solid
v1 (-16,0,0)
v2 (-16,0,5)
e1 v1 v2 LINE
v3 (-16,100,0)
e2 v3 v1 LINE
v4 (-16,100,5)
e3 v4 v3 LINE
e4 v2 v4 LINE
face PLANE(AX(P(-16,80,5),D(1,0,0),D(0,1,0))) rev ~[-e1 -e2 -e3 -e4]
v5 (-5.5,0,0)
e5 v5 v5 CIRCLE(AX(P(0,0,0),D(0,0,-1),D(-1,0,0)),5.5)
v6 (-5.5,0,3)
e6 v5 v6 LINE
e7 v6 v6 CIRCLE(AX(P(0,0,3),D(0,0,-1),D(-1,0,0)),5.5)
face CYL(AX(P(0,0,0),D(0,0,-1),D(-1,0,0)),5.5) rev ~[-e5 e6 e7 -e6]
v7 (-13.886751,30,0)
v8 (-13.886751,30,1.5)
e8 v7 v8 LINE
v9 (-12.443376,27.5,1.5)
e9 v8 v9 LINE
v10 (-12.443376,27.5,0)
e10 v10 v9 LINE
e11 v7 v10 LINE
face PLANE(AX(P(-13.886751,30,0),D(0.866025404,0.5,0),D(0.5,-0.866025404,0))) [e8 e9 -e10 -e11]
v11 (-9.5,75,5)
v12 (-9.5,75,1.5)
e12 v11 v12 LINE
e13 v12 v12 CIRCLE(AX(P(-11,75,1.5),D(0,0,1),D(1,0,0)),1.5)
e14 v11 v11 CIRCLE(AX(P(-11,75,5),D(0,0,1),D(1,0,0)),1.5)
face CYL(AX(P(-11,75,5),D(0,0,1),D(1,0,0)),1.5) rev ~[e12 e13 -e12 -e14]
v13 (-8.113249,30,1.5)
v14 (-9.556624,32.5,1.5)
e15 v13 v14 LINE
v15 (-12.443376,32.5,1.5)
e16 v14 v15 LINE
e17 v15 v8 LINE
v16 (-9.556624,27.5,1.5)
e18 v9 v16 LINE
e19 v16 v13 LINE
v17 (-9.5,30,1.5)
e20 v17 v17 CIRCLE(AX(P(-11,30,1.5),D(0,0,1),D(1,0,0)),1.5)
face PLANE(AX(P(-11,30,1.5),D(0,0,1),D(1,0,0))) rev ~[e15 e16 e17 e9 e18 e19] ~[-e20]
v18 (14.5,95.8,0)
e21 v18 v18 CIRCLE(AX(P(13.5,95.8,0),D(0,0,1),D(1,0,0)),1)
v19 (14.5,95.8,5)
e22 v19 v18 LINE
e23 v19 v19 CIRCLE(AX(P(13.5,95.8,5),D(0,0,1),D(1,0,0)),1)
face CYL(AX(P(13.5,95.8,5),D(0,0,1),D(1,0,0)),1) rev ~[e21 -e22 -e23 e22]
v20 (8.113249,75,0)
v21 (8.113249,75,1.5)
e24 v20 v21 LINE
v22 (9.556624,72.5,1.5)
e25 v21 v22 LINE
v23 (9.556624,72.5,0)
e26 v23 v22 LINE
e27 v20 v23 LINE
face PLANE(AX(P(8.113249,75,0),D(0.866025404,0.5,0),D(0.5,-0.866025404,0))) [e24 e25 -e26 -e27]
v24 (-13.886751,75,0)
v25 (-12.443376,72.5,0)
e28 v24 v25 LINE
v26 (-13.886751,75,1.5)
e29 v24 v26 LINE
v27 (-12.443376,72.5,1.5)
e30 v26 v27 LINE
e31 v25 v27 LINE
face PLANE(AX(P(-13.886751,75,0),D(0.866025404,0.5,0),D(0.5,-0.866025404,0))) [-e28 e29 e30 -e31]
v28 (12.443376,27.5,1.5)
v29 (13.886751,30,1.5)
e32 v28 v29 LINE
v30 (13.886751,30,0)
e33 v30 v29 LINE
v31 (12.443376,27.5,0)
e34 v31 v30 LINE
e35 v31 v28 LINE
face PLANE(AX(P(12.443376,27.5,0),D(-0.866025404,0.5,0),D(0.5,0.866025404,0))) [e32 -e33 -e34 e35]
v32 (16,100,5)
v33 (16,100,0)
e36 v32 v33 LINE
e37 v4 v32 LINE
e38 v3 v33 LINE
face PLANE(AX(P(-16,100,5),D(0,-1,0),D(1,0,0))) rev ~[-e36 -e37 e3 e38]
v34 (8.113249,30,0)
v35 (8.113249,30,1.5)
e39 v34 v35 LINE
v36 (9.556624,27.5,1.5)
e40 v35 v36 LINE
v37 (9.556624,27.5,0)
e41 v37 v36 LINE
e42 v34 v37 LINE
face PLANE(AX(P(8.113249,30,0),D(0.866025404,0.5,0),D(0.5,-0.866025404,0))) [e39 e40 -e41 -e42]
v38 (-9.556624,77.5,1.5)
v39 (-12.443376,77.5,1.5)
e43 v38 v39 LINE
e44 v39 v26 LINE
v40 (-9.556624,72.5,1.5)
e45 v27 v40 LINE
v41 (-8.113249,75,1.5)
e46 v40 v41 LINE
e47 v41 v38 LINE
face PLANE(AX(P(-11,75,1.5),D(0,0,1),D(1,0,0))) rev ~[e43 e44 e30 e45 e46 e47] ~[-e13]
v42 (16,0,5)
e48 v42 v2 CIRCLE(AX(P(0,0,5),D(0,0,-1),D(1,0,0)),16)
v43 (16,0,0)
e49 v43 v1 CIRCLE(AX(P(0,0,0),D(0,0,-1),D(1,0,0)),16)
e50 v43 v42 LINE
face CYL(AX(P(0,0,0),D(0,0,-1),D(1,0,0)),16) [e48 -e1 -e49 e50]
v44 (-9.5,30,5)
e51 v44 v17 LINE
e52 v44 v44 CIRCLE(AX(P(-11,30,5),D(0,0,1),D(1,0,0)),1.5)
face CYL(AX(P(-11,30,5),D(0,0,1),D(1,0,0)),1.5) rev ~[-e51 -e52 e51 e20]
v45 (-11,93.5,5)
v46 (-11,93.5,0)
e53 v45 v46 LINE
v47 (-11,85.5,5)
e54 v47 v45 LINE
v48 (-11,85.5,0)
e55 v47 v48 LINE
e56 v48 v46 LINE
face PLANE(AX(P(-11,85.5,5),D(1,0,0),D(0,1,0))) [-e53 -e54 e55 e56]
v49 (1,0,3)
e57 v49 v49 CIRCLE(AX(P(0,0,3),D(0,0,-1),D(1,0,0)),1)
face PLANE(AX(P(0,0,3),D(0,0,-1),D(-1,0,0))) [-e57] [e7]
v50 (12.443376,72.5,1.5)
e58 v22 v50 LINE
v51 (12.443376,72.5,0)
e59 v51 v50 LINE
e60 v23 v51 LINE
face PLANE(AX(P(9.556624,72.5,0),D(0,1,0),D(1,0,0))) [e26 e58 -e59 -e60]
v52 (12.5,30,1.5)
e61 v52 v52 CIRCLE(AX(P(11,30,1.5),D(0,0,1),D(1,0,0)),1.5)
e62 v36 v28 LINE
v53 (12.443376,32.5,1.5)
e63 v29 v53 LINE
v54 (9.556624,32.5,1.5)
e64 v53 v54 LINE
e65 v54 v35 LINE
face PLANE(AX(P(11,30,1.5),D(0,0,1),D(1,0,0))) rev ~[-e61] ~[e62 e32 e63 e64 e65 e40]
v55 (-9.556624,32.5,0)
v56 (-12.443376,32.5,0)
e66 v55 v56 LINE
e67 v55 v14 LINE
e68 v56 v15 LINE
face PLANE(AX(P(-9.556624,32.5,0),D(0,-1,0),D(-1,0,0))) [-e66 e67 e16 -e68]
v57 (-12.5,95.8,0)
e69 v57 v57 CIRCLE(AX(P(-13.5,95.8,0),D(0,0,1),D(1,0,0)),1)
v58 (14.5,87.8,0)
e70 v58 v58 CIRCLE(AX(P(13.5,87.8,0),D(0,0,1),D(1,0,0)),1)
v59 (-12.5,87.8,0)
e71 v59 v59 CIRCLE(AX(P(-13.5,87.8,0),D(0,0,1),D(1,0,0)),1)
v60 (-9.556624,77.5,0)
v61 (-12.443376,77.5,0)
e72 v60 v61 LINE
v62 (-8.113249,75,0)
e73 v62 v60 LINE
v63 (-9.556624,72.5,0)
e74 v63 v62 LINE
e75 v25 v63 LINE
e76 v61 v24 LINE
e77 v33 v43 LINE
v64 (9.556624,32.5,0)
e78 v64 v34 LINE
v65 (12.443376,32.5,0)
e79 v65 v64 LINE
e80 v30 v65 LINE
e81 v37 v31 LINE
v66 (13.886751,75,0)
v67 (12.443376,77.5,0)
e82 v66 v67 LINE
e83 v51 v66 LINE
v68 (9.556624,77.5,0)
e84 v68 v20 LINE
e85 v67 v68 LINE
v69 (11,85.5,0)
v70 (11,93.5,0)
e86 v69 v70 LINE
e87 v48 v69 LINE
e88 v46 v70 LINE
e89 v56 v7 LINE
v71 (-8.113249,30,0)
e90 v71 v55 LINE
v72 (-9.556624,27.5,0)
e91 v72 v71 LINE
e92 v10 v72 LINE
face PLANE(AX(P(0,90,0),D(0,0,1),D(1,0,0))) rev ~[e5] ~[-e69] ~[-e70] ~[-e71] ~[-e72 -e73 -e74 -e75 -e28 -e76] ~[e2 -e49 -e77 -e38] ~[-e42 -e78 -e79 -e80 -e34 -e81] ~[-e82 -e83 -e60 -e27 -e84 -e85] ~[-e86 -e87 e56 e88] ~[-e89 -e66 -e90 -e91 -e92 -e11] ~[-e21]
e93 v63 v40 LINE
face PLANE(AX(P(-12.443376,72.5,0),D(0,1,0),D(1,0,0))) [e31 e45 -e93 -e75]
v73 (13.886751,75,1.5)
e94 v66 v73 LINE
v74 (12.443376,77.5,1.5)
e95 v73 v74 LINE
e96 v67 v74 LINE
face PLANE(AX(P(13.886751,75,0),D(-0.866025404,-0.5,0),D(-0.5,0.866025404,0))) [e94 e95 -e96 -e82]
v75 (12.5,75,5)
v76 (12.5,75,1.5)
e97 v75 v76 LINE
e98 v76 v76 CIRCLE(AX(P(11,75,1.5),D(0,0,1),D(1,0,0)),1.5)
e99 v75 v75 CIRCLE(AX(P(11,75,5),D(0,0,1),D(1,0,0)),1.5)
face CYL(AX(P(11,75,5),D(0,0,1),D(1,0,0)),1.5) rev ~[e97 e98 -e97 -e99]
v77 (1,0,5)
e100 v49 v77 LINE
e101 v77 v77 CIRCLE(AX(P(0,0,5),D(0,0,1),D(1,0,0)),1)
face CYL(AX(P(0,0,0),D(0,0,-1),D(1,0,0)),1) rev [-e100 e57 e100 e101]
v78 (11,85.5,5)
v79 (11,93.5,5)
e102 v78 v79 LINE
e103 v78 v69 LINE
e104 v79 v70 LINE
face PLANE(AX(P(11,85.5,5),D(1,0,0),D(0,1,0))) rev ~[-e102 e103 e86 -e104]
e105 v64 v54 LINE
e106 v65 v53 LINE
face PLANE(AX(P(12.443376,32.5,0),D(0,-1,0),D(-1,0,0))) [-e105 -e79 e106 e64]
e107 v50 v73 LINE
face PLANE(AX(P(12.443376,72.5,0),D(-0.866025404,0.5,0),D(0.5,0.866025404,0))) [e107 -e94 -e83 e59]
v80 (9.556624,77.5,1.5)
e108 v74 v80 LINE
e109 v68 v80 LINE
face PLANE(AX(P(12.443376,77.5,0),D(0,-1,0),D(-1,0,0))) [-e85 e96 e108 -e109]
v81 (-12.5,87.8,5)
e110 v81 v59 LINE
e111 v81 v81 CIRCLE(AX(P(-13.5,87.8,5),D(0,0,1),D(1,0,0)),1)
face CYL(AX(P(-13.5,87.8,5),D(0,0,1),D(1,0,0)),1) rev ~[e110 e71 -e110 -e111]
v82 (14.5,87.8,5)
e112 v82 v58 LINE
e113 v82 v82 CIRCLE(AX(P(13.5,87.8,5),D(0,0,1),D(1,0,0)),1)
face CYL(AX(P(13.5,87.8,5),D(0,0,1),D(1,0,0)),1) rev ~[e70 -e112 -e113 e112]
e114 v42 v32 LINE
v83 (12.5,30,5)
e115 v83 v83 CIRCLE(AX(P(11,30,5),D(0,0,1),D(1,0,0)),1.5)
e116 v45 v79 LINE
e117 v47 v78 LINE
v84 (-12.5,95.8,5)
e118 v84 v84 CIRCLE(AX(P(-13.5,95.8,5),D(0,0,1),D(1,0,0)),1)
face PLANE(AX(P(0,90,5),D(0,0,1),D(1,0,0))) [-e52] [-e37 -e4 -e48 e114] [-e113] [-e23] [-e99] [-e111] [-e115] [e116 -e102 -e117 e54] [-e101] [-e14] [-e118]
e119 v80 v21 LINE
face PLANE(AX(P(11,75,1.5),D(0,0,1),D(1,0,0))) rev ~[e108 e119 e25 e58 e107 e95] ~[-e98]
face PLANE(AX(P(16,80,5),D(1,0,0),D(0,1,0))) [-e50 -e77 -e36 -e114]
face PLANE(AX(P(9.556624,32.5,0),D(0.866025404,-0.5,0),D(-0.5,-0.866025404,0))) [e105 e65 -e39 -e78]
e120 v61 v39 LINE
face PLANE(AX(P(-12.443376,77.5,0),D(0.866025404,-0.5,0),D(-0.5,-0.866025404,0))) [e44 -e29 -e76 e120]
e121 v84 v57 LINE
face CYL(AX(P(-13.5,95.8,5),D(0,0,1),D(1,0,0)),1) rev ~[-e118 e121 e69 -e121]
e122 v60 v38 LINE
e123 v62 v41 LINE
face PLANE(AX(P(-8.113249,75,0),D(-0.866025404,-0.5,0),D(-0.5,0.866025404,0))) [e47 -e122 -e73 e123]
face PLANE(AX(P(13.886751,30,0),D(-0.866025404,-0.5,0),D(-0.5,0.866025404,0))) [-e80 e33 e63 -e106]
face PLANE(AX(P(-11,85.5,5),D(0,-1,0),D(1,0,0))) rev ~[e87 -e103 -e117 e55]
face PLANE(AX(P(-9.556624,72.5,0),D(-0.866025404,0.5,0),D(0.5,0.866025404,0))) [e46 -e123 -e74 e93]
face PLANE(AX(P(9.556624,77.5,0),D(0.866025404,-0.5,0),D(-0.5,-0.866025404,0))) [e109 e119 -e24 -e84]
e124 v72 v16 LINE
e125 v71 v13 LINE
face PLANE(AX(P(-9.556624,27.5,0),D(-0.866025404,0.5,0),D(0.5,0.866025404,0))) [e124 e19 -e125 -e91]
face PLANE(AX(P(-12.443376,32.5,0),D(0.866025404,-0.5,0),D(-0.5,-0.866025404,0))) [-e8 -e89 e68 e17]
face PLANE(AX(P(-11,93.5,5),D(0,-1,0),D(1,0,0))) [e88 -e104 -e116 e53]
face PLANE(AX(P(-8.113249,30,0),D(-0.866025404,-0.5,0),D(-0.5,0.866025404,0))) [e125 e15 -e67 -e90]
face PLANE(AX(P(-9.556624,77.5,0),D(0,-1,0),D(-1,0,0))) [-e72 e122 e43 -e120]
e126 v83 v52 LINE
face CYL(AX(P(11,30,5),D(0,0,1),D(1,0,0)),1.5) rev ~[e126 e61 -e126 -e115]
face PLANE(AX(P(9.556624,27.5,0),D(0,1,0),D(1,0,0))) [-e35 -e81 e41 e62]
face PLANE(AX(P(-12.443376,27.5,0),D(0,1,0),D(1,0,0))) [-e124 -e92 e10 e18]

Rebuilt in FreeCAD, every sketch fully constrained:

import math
import FreeCAD as App
import Part
import Sketcher
from FreeCAD import Vector
Q = App.Units.Quantity

doc = App.newDocument("Part")
params = doc.addObject("Spreadsheet::Sheet", "Params")
for row, (alias, value) in enumerate([
    ("sketch1_diameter", "2 mm"),
    ("sketch1_radius", "16 mm"),
    ("sketch1_height", "80 mm"),
    ("pad1_length", "5 mm"),
    ("sketch2_diameter", "11 mm"),
    ("pocket1_length", "3 mm"),
    ("sketch3_diameter", "3 mm"),
    ("sketch4_diameter", "2 mm"),
    ("sketch4_width", "32 mm"),
    ("sketch4_width2", "22 mm"),
    ("sketch4_height", "20 mm"),
    ("sketch4_height2", "8 mm"),
    ("pad2_length", "5 mm"),
    ("pocket3_length", "1.5 mm"),
], start=1):
    params.set(f"A{row}", alias)
    params.set(f"B{row}", "=" + value)
    params.setAlias(f"B{row}", alias)

body = doc.addObject("PartDesign::Body", "Body")

sketch1 = body.newObject("Sketcher::SketchObject", "Sketch")
sketch1.AttachmentSupport = (doc.getObject("XY_Plane"), [""])
sketch1.MapMode = "FlatFace"
sketch1.addGeometry([
    Part.LineSegment(Vector(-16, 80, 0), Vector(-16, 0, 0)),
    Part.ArcOfCircle(Part.Circle(Vector(0, 0, 0), Vector(0, 0, 1), 16), math.radians(180), math.radians(360)),
    Part.LineSegment(Vector(16, 0, 0), Vector(16, 80, 0)),
    Part.LineSegment(Vector(16, 80, 0), Vector(-16, 80, 0)),
    Part.Circle(Vector(0, 0, 0), Vector(0, 0, 1), 1),
], False)
sketch1.addConstraint([
    Sketcher.Constraint("Tangent", 0, 2, 1, 1),
    Sketcher.Constraint("Tangent", 1, 2, 2, 1),
    Sketcher.Constraint("Coincident", 2, 2, 3, 1),
    Sketcher.Constraint("Coincident", 3, 2, 0, 1),
    Sketcher.Constraint("Vertical", 0),
    Sketcher.Constraint("Vertical", 2),
    Sketcher.Constraint("Horizontal", 3),
    Sketcher.Constraint("Coincident", 1, 3, -1, 1),
    Sketcher.Constraint("Coincident", 4, 3, -1, 1),
    Sketcher.Constraint("Diameter", 4, Q("2 mm")),
    Sketcher.Constraint("Radius", 1, Q("16 mm")),
    Sketcher.Constraint("DistanceY", 0, 2, 0, 1, Q("80 mm")),
])
sketch1.setExpression("Constraints[9]", "Params.sketch1_diameter")
sketch1.setExpression("Constraints[10]", "Params.sketch1_radius")
sketch1.setExpression("Constraints[11]", "Params.sketch1_height")
pad1 = body.newObject("PartDesign::Pad", "Pad")
pad1.Profile = sketch1
pad1.setExpression("Length", "Params.pad1_length")

sketch2 = body.newObject("Sketcher::SketchObject", "Sketch001")
sketch2.AttachmentSupport = (doc.getObject("XY_Plane"), [""])
sketch2.MapMode = "FlatFace"
sketch2.addGeometry(Part.Circle(Vector(0, 0, 0), Vector(0, 0, 1), 5.5), False)
sketch2.addConstraint([
    Sketcher.Constraint("Coincident", 0, 3, -1, 1),
    Sketcher.Constraint("Diameter", 0, Q("11 mm")),
])
sketch2.setExpression("Constraints[1]", "Params.sketch2_diameter")
pocket1 = body.newObject("PartDesign::Pocket", "Pocket")
pocket1.Profile = sketch2
pocket1.setExpression("Length", "Params.pocket1_length")
pocket1.Reversed = True

sketch3 = body.newObject("Sketcher::SketchObject", "Sketch002")
sketch3.AttachmentSupport = (doc.getObject("XY_Plane"), [""])
sketch3.MapMode = "FlatFace"
sketch3.AttachmentOffset = App.Placement(Vector(0, 0, 5), App.Rotation())
sketch3.addGeometry([
    Part.Circle(Vector(-11, 75, 0), Vector(0, 0, 1), 1.5),
    Part.Circle(Vector(11, 75, 0), Vector(0, 0, 1), 1.5),
    Part.Circle(Vector(-11, 30, 0), Vector(0, 0, 1), 1.5),
    Part.Circle(Vector(11, 30, 0), Vector(0, 0, 1), 1.5),
], False)
sketch3.addConstraint([
    Sketcher.Constraint("Equal", 0, 1),
    Sketcher.Constraint("Equal", 1, 2),
    Sketcher.Constraint("Equal", 2, 3),
    Sketcher.Constraint("Symmetric", 0, 3, 1, 3, -2),
    Sketcher.Constraint("Symmetric", 2, 3, 3, 3, -2),
    Sketcher.Constraint("Vertical", 0, 3, 2, 3),
    Sketcher.Constraint("Diameter", 0, Q("3 mm")),
    Sketcher.Constraint("DistanceX", 0, 3, -1, 1, Q("11 mm")),
    Sketcher.Constraint("DistanceY", -1, 1, 0, 3, Q("75 mm")),
    Sketcher.Constraint("DistanceY", -1, 1, 2, 3, Q("30 mm")),
])
sketch3.setExpression("Constraints[6]", "Params.sketch3_diameter")
pocket2 = body.newObject("PartDesign::Pocket", "Pocket001")
pocket2.Profile = sketch3
pocket2.Type = "ThroughAll"

sketch4 = body.newObject("Sketcher::SketchObject", "Sketch003")
sketch4.AttachmentSupport = (doc.getObject("XY_Plane"), [""])
sketch4.MapMode = "FlatFace"
sketch4.AttachmentOffset = App.Placement(Vector(0, 0, 5), App.Rotation())
sketch4.addGeometry([
    Part.LineSegment(Vector(-16, 100, 0), Vector(-16, 80, 0)),
    Part.LineSegment(Vector(-16, 80, 0), Vector(16, 80, 0)),
    Part.LineSegment(Vector(16, 80, 0), Vector(16, 100, 0)),
    Part.LineSegment(Vector(16, 100, 0), Vector(-16, 100, 0)),
    Part.Circle(Vector(-13.5, 87.8, 0), Vector(0, 0, 1), 1),
    Part.Circle(Vector(13.5, 87.8, 0), Vector(0, 0, 1), 1),
    Part.LineSegment(Vector(11, 85.5, 0), Vector(-11, 85.5, 0)),
    Part.LineSegment(Vector(-11, 85.5, 0), Vector(-11, 93.5, 0)),
    Part.LineSegment(Vector(-11, 93.5, 0), Vector(11, 93.5, 0)),
    Part.LineSegment(Vector(11, 93.5, 0), Vector(11, 85.5, 0)),
    Part.Circle(Vector(-13.5, 95.8, 0), Vector(0, 0, 1), 1),
    Part.Circle(Vector(13.5, 95.8, 0), Vector(0, 0, 1), 1),
], False)
sketch4.addConstraint([
    Sketcher.Constraint("Coincident", 0, 2, 1, 1),
    Sketcher.Constraint("Coincident", 1, 2, 2, 1),
    Sketcher.Constraint("Coincident", 2, 2, 3, 1),
    Sketcher.Constraint("Coincident", 3, 2, 0, 1),
    Sketcher.Constraint("Coincident", 6, 2, 7, 1),
    Sketcher.Constraint("Coincident", 7, 2, 8, 1),
    Sketcher.Constraint("Coincident", 8, 2, 9, 1),
    Sketcher.Constraint("Coincident", 9, 2, 6, 1),
    Sketcher.Constraint("Vertical", 0),
    Sketcher.Constraint("Horizontal", 1),
    Sketcher.Constraint("Vertical", 2),
    Sketcher.Constraint("Horizontal", 3),
    Sketcher.Constraint("Horizontal", 6),
    Sketcher.Constraint("Vertical", 7),
    Sketcher.Constraint("Horizontal", 8),
    Sketcher.Constraint("Vertical", 9),
    Sketcher.Constraint("Equal", 4, 5),
    Sketcher.Constraint("Equal", 5, 10),
    Sketcher.Constraint("Equal", 10, 11),
    Sketcher.Constraint("Symmetric", 4, 3, 5, 3, -2),
    Sketcher.Constraint("Symmetric", 10, 3, 11, 3, -2),
    Sketcher.Constraint("Vertical", 4, 3, 10, 3),
    Sketcher.Constraint("Diameter", 4, Q("2 mm")),
    Sketcher.Constraint("DistanceX", 1, 1, 1, 2, Q("32 mm")),
    Sketcher.Constraint("DistanceX", 6, 2, 6, 1, Q("22 mm")),
    Sketcher.Constraint("DistanceY", 0, 2, 0, 1, Q("20 mm")),
    Sketcher.Constraint("DistanceY", 7, 1, 7, 2, Q("8 mm")),
    Sketcher.Constraint("DistanceX", 0, 2, -1, 1, Q("16 mm")),
    Sketcher.Constraint("DistanceY", -1, 1, 0, 2, Q("80 mm")),
    Sketcher.Constraint("DistanceX", 6, 2, -1, 1, Q("11 mm")),
    Sketcher.Constraint("DistanceX", 4, 3, 5, 3, Q("27 mm")),
    Sketcher.Constraint("DistanceY", 4, 3, 10, 3, Q("8 mm")),
    Sketcher.Constraint("DistanceY", -1, 1, 4, 3, Q("87.8 mm")),
    Sketcher.Constraint("DistanceY", -1, 1, 6, 2, Q("85.5 mm")),
])
sketch4.setExpression("Constraints[22]", "Params.sketch4_diameter")
sketch4.setExpression("Constraints[23]", "Params.sketch4_width")
sketch4.setExpression("Constraints[24]", "Params.sketch4_width2")
sketch4.setExpression("Constraints[25]", "Params.sketch4_height")
sketch4.setExpression("Constraints[26]", "Params.sketch4_height2")
pad2 = body.newObject("PartDesign::Pad", "Pad001")
pad2.Profile = sketch4
pad2.setExpression("Length", "Params.pad2_length")
pad2.Reversed = True

sketch5 = body.newObject("Sketcher::SketchObject", "Sketch004")
sketch5.AttachmentSupport = (doc.getObject("XY_Plane"), [""])
sketch5.MapMode = "FlatFace"
sketch5.addGeometry([
    Part.LineSegment(Vector(-8.113249, 75, 0), Vector(-9.556624, 77.5, 0)),
    Part.LineSegment(Vector(-9.556624, 77.5, 0), Vector(-12.443376, 77.5, 0)),
    Part.LineSegment(Vector(-12.443376, 77.5, 0), Vector(-13.886751, 75, 0)),
    Part.LineSegment(Vector(-13.886751, 75, 0), Vector(-12.443376, 72.5, 0)),
    Part.LineSegment(Vector(-12.443376, 72.5, 0), Vector(-9.556624, 72.5, 0)),
    Part.LineSegment(Vector(-9.556624, 72.5, 0), Vector(-8.113249, 75, 0)),
    Part.LineSegment(Vector(8.113249, 75, 0), Vector(9.556624, 72.5, 0)),
    Part.LineSegment(Vector(9.556624, 72.5, 0), Vector(12.443376, 72.5, 0)),
    Part.LineSegment(Vector(12.443376, 72.5, 0), Vector(13.886751, 75, 0)),
    Part.LineSegment(Vector(13.886751, 75, 0), Vector(12.443376, 77.5, 0)),
    Part.LineSegment(Vector(12.443376, 77.5, 0), Vector(9.556624, 77.5, 0)),
    Part.LineSegment(Vector(9.556624, 77.5, 0), Vector(8.113249, 75, 0)),
    Part.LineSegment(Vector(8.113249, 30, 0), Vector(9.556624, 27.5, 0)),
    Part.LineSegment(Vector(9.556624, 27.5, 0), Vector(12.443376, 27.5, 0)),
    Part.LineSegment(Vector(12.443376, 27.5, 0), Vector(13.886751, 30, 0)),
    Part.LineSegment(Vector(13.886751, 30, 0), Vector(12.443376, 32.5, 0)),
    Part.LineSegment(Vector(12.443376, 32.5, 0), Vector(9.556624, 32.5, 0)),
    Part.LineSegment(Vector(9.556624, 32.5, 0), Vector(8.113249, 30, 0)),
    Part.LineSegment(Vector(-8.113249, 30, 0), Vector(-9.556624, 32.5, 0)),
    Part.LineSegment(Vector(-9.556624, 32.5, 0), Vector(-12.443376, 32.5, 0)),
    Part.LineSegment(Vector(-12.443376, 32.5, 0), Vector(-13.886751, 30, 0)),
    Part.LineSegment(Vector(-13.886751, 30, 0), Vector(-12.443376, 27.5, 0)),
    Part.LineSegment(Vector(-12.443376, 27.5, 0), Vector(-9.556624, 27.5, 0)),
    Part.LineSegment(Vector(-9.556624, 27.5, 0), Vector(-8.113249, 30, 0)),
], False)
sketch5.addConstraint([
    Sketcher.Constraint("Coincident", 0, 2, 1, 1),
    Sketcher.Constraint("Coincident", 1, 2, 2, 1),
    Sketcher.Constraint("Coincident", 2, 2, 3, 1),
    Sketcher.Constraint("Coincident", 3, 2, 4, 1),
    Sketcher.Constraint("Coincident", 4, 2, 5, 1),
    Sketcher.Constraint("Coincident", 5, 2, 0, 1),
    Sketcher.Constraint("Coincident", 6, 2, 7, 1),
    Sketcher.Constraint("Coincident", 7, 2, 8, 1),
    Sketcher.Constraint("Coincident", 8, 2, 9, 1),
    Sketcher.Constraint("Coincident", 9, 2, 10, 1),
    Sketcher.Constraint("Coincident", 10, 2, 11, 1),
    Sketcher.Constraint("Coincident", 11, 2, 6, 1),
    Sketcher.Constraint("Coincident", 12, 2, 13, 1),
    Sketcher.Constraint("Coincident", 13, 2, 14, 1),
    Sketcher.Constraint("Coincident", 14, 2, 15, 1),
    Sketcher.Constraint("Coincident", 15, 2, 16, 1),
    Sketcher.Constraint("Coincident", 16, 2, 17, 1),
    Sketcher.Constraint("Coincident", 17, 2, 12, 1),
    Sketcher.Constraint("Coincident", 18, 2, 19, 1),
    Sketcher.Constraint("Coincident", 19, 2, 20, 1),
    Sketcher.Constraint("Coincident", 20, 2, 21, 1),
    Sketcher.Constraint("Coincident", 21, 2, 22, 1),
    Sketcher.Constraint("Coincident", 22, 2, 23, 1),
    Sketcher.Constraint("Coincident", 23, 2, 18, 1),
    Sketcher.Constraint("Horizontal", 1),
    Sketcher.Constraint("Horizontal", 4),
    Sketcher.Constraint("Horizontal", 7),
    Sketcher.Constraint("Horizontal", 10),
    Sketcher.Constraint("Horizontal", 13),
    Sketcher.Constraint("Horizontal", 16),
    Sketcher.Constraint("Horizontal", 19),
    Sketcher.Constraint("Horizontal", 22),
    Sketcher.Constraint("Symmetric", 4, 2, 6, 2, -2),
    Sketcher.Constraint("Symmetric", 2, 2, 8, 2, -2),
    Sketcher.Constraint("Symmetric", 1, 2, 9, 2, -2),
    Sketcher.Constraint("Symmetric", 5, 2, 11, 2, -2),
    Sketcher.Constraint("Symmetric", 16, 2, 18, 2, -2),
    Sketcher.Constraint("Symmetric", 14, 2, 20, 2, -2),
    Sketcher.Constraint("Symmetric", 13, 2, 21, 2, -2),
    Sketcher.Constraint("Symmetric", 17, 2, 23, 2, -2),
    Sketcher.Constraint("Parallel", 0, 3),
    Sketcher.Constraint("Parallel", 2, 5),
    Sketcher.Constraint("Parallel", 3, 6),
    Sketcher.Constraint("Parallel", 5, 8),
    Sketcher.Constraint("Parallel", 8, 11),
    Sketcher.Constraint("Parallel", 9, 12),
    Sketcher.Constraint("Parallel", 11, 14),
    Sketcher.Constraint("Parallel", 12, 15),
    Sketcher.Constraint("Parallel", 14, 17),
    Sketcher.Constraint("Parallel", 17, 20),
    Sketcher.Constraint("Parallel", 20, 23),
    Sketcher.Constraint("Horizontal", 2, 2, 5, 2),
    Sketcher.Constraint("Horizontal", 14, 2, 17, 2),
    Sketcher.Constraint("Vertical", 1, 2, 3, 2),
    Sketcher.Constraint("Vertical", 10, 2, 12, 2),
    Sketcher.Constraint("Vertical", 9, 2, 13, 2),
    Sketcher.Constraint("Vertical", 8, 2, 14, 2),
    Sketcher.Constraint("Vertical", 13, 2, 15, 2),
    Sketcher.Constraint("Angle", 0, Q("120 deg")),
    Sketcher.Constraint("DistanceY", -1, 1, 2, 2, Q("75 mm")),
    Sketcher.Constraint("DistanceY", -1, 1, 14, 2, Q("30 mm")),
    Sketcher.Constraint("DistanceY", 3, 2, 1, 2, Q("5 mm")),
    Sketcher.Constraint("DistanceX", 3, 2, 6, 2, Q("22 mm")),
    Sketcher.Constraint("DistanceX", 1, 2, 1, 1, Q("2.886751 mm")),
])
pocket3 = body.newObject("PartDesign::Pocket", "Pocket002")
pocket3.Profile = sketch5
pocket3.setExpression("Length", "Params.pocket3_length")
pocket3.Reversed = True

doc.recompute()
